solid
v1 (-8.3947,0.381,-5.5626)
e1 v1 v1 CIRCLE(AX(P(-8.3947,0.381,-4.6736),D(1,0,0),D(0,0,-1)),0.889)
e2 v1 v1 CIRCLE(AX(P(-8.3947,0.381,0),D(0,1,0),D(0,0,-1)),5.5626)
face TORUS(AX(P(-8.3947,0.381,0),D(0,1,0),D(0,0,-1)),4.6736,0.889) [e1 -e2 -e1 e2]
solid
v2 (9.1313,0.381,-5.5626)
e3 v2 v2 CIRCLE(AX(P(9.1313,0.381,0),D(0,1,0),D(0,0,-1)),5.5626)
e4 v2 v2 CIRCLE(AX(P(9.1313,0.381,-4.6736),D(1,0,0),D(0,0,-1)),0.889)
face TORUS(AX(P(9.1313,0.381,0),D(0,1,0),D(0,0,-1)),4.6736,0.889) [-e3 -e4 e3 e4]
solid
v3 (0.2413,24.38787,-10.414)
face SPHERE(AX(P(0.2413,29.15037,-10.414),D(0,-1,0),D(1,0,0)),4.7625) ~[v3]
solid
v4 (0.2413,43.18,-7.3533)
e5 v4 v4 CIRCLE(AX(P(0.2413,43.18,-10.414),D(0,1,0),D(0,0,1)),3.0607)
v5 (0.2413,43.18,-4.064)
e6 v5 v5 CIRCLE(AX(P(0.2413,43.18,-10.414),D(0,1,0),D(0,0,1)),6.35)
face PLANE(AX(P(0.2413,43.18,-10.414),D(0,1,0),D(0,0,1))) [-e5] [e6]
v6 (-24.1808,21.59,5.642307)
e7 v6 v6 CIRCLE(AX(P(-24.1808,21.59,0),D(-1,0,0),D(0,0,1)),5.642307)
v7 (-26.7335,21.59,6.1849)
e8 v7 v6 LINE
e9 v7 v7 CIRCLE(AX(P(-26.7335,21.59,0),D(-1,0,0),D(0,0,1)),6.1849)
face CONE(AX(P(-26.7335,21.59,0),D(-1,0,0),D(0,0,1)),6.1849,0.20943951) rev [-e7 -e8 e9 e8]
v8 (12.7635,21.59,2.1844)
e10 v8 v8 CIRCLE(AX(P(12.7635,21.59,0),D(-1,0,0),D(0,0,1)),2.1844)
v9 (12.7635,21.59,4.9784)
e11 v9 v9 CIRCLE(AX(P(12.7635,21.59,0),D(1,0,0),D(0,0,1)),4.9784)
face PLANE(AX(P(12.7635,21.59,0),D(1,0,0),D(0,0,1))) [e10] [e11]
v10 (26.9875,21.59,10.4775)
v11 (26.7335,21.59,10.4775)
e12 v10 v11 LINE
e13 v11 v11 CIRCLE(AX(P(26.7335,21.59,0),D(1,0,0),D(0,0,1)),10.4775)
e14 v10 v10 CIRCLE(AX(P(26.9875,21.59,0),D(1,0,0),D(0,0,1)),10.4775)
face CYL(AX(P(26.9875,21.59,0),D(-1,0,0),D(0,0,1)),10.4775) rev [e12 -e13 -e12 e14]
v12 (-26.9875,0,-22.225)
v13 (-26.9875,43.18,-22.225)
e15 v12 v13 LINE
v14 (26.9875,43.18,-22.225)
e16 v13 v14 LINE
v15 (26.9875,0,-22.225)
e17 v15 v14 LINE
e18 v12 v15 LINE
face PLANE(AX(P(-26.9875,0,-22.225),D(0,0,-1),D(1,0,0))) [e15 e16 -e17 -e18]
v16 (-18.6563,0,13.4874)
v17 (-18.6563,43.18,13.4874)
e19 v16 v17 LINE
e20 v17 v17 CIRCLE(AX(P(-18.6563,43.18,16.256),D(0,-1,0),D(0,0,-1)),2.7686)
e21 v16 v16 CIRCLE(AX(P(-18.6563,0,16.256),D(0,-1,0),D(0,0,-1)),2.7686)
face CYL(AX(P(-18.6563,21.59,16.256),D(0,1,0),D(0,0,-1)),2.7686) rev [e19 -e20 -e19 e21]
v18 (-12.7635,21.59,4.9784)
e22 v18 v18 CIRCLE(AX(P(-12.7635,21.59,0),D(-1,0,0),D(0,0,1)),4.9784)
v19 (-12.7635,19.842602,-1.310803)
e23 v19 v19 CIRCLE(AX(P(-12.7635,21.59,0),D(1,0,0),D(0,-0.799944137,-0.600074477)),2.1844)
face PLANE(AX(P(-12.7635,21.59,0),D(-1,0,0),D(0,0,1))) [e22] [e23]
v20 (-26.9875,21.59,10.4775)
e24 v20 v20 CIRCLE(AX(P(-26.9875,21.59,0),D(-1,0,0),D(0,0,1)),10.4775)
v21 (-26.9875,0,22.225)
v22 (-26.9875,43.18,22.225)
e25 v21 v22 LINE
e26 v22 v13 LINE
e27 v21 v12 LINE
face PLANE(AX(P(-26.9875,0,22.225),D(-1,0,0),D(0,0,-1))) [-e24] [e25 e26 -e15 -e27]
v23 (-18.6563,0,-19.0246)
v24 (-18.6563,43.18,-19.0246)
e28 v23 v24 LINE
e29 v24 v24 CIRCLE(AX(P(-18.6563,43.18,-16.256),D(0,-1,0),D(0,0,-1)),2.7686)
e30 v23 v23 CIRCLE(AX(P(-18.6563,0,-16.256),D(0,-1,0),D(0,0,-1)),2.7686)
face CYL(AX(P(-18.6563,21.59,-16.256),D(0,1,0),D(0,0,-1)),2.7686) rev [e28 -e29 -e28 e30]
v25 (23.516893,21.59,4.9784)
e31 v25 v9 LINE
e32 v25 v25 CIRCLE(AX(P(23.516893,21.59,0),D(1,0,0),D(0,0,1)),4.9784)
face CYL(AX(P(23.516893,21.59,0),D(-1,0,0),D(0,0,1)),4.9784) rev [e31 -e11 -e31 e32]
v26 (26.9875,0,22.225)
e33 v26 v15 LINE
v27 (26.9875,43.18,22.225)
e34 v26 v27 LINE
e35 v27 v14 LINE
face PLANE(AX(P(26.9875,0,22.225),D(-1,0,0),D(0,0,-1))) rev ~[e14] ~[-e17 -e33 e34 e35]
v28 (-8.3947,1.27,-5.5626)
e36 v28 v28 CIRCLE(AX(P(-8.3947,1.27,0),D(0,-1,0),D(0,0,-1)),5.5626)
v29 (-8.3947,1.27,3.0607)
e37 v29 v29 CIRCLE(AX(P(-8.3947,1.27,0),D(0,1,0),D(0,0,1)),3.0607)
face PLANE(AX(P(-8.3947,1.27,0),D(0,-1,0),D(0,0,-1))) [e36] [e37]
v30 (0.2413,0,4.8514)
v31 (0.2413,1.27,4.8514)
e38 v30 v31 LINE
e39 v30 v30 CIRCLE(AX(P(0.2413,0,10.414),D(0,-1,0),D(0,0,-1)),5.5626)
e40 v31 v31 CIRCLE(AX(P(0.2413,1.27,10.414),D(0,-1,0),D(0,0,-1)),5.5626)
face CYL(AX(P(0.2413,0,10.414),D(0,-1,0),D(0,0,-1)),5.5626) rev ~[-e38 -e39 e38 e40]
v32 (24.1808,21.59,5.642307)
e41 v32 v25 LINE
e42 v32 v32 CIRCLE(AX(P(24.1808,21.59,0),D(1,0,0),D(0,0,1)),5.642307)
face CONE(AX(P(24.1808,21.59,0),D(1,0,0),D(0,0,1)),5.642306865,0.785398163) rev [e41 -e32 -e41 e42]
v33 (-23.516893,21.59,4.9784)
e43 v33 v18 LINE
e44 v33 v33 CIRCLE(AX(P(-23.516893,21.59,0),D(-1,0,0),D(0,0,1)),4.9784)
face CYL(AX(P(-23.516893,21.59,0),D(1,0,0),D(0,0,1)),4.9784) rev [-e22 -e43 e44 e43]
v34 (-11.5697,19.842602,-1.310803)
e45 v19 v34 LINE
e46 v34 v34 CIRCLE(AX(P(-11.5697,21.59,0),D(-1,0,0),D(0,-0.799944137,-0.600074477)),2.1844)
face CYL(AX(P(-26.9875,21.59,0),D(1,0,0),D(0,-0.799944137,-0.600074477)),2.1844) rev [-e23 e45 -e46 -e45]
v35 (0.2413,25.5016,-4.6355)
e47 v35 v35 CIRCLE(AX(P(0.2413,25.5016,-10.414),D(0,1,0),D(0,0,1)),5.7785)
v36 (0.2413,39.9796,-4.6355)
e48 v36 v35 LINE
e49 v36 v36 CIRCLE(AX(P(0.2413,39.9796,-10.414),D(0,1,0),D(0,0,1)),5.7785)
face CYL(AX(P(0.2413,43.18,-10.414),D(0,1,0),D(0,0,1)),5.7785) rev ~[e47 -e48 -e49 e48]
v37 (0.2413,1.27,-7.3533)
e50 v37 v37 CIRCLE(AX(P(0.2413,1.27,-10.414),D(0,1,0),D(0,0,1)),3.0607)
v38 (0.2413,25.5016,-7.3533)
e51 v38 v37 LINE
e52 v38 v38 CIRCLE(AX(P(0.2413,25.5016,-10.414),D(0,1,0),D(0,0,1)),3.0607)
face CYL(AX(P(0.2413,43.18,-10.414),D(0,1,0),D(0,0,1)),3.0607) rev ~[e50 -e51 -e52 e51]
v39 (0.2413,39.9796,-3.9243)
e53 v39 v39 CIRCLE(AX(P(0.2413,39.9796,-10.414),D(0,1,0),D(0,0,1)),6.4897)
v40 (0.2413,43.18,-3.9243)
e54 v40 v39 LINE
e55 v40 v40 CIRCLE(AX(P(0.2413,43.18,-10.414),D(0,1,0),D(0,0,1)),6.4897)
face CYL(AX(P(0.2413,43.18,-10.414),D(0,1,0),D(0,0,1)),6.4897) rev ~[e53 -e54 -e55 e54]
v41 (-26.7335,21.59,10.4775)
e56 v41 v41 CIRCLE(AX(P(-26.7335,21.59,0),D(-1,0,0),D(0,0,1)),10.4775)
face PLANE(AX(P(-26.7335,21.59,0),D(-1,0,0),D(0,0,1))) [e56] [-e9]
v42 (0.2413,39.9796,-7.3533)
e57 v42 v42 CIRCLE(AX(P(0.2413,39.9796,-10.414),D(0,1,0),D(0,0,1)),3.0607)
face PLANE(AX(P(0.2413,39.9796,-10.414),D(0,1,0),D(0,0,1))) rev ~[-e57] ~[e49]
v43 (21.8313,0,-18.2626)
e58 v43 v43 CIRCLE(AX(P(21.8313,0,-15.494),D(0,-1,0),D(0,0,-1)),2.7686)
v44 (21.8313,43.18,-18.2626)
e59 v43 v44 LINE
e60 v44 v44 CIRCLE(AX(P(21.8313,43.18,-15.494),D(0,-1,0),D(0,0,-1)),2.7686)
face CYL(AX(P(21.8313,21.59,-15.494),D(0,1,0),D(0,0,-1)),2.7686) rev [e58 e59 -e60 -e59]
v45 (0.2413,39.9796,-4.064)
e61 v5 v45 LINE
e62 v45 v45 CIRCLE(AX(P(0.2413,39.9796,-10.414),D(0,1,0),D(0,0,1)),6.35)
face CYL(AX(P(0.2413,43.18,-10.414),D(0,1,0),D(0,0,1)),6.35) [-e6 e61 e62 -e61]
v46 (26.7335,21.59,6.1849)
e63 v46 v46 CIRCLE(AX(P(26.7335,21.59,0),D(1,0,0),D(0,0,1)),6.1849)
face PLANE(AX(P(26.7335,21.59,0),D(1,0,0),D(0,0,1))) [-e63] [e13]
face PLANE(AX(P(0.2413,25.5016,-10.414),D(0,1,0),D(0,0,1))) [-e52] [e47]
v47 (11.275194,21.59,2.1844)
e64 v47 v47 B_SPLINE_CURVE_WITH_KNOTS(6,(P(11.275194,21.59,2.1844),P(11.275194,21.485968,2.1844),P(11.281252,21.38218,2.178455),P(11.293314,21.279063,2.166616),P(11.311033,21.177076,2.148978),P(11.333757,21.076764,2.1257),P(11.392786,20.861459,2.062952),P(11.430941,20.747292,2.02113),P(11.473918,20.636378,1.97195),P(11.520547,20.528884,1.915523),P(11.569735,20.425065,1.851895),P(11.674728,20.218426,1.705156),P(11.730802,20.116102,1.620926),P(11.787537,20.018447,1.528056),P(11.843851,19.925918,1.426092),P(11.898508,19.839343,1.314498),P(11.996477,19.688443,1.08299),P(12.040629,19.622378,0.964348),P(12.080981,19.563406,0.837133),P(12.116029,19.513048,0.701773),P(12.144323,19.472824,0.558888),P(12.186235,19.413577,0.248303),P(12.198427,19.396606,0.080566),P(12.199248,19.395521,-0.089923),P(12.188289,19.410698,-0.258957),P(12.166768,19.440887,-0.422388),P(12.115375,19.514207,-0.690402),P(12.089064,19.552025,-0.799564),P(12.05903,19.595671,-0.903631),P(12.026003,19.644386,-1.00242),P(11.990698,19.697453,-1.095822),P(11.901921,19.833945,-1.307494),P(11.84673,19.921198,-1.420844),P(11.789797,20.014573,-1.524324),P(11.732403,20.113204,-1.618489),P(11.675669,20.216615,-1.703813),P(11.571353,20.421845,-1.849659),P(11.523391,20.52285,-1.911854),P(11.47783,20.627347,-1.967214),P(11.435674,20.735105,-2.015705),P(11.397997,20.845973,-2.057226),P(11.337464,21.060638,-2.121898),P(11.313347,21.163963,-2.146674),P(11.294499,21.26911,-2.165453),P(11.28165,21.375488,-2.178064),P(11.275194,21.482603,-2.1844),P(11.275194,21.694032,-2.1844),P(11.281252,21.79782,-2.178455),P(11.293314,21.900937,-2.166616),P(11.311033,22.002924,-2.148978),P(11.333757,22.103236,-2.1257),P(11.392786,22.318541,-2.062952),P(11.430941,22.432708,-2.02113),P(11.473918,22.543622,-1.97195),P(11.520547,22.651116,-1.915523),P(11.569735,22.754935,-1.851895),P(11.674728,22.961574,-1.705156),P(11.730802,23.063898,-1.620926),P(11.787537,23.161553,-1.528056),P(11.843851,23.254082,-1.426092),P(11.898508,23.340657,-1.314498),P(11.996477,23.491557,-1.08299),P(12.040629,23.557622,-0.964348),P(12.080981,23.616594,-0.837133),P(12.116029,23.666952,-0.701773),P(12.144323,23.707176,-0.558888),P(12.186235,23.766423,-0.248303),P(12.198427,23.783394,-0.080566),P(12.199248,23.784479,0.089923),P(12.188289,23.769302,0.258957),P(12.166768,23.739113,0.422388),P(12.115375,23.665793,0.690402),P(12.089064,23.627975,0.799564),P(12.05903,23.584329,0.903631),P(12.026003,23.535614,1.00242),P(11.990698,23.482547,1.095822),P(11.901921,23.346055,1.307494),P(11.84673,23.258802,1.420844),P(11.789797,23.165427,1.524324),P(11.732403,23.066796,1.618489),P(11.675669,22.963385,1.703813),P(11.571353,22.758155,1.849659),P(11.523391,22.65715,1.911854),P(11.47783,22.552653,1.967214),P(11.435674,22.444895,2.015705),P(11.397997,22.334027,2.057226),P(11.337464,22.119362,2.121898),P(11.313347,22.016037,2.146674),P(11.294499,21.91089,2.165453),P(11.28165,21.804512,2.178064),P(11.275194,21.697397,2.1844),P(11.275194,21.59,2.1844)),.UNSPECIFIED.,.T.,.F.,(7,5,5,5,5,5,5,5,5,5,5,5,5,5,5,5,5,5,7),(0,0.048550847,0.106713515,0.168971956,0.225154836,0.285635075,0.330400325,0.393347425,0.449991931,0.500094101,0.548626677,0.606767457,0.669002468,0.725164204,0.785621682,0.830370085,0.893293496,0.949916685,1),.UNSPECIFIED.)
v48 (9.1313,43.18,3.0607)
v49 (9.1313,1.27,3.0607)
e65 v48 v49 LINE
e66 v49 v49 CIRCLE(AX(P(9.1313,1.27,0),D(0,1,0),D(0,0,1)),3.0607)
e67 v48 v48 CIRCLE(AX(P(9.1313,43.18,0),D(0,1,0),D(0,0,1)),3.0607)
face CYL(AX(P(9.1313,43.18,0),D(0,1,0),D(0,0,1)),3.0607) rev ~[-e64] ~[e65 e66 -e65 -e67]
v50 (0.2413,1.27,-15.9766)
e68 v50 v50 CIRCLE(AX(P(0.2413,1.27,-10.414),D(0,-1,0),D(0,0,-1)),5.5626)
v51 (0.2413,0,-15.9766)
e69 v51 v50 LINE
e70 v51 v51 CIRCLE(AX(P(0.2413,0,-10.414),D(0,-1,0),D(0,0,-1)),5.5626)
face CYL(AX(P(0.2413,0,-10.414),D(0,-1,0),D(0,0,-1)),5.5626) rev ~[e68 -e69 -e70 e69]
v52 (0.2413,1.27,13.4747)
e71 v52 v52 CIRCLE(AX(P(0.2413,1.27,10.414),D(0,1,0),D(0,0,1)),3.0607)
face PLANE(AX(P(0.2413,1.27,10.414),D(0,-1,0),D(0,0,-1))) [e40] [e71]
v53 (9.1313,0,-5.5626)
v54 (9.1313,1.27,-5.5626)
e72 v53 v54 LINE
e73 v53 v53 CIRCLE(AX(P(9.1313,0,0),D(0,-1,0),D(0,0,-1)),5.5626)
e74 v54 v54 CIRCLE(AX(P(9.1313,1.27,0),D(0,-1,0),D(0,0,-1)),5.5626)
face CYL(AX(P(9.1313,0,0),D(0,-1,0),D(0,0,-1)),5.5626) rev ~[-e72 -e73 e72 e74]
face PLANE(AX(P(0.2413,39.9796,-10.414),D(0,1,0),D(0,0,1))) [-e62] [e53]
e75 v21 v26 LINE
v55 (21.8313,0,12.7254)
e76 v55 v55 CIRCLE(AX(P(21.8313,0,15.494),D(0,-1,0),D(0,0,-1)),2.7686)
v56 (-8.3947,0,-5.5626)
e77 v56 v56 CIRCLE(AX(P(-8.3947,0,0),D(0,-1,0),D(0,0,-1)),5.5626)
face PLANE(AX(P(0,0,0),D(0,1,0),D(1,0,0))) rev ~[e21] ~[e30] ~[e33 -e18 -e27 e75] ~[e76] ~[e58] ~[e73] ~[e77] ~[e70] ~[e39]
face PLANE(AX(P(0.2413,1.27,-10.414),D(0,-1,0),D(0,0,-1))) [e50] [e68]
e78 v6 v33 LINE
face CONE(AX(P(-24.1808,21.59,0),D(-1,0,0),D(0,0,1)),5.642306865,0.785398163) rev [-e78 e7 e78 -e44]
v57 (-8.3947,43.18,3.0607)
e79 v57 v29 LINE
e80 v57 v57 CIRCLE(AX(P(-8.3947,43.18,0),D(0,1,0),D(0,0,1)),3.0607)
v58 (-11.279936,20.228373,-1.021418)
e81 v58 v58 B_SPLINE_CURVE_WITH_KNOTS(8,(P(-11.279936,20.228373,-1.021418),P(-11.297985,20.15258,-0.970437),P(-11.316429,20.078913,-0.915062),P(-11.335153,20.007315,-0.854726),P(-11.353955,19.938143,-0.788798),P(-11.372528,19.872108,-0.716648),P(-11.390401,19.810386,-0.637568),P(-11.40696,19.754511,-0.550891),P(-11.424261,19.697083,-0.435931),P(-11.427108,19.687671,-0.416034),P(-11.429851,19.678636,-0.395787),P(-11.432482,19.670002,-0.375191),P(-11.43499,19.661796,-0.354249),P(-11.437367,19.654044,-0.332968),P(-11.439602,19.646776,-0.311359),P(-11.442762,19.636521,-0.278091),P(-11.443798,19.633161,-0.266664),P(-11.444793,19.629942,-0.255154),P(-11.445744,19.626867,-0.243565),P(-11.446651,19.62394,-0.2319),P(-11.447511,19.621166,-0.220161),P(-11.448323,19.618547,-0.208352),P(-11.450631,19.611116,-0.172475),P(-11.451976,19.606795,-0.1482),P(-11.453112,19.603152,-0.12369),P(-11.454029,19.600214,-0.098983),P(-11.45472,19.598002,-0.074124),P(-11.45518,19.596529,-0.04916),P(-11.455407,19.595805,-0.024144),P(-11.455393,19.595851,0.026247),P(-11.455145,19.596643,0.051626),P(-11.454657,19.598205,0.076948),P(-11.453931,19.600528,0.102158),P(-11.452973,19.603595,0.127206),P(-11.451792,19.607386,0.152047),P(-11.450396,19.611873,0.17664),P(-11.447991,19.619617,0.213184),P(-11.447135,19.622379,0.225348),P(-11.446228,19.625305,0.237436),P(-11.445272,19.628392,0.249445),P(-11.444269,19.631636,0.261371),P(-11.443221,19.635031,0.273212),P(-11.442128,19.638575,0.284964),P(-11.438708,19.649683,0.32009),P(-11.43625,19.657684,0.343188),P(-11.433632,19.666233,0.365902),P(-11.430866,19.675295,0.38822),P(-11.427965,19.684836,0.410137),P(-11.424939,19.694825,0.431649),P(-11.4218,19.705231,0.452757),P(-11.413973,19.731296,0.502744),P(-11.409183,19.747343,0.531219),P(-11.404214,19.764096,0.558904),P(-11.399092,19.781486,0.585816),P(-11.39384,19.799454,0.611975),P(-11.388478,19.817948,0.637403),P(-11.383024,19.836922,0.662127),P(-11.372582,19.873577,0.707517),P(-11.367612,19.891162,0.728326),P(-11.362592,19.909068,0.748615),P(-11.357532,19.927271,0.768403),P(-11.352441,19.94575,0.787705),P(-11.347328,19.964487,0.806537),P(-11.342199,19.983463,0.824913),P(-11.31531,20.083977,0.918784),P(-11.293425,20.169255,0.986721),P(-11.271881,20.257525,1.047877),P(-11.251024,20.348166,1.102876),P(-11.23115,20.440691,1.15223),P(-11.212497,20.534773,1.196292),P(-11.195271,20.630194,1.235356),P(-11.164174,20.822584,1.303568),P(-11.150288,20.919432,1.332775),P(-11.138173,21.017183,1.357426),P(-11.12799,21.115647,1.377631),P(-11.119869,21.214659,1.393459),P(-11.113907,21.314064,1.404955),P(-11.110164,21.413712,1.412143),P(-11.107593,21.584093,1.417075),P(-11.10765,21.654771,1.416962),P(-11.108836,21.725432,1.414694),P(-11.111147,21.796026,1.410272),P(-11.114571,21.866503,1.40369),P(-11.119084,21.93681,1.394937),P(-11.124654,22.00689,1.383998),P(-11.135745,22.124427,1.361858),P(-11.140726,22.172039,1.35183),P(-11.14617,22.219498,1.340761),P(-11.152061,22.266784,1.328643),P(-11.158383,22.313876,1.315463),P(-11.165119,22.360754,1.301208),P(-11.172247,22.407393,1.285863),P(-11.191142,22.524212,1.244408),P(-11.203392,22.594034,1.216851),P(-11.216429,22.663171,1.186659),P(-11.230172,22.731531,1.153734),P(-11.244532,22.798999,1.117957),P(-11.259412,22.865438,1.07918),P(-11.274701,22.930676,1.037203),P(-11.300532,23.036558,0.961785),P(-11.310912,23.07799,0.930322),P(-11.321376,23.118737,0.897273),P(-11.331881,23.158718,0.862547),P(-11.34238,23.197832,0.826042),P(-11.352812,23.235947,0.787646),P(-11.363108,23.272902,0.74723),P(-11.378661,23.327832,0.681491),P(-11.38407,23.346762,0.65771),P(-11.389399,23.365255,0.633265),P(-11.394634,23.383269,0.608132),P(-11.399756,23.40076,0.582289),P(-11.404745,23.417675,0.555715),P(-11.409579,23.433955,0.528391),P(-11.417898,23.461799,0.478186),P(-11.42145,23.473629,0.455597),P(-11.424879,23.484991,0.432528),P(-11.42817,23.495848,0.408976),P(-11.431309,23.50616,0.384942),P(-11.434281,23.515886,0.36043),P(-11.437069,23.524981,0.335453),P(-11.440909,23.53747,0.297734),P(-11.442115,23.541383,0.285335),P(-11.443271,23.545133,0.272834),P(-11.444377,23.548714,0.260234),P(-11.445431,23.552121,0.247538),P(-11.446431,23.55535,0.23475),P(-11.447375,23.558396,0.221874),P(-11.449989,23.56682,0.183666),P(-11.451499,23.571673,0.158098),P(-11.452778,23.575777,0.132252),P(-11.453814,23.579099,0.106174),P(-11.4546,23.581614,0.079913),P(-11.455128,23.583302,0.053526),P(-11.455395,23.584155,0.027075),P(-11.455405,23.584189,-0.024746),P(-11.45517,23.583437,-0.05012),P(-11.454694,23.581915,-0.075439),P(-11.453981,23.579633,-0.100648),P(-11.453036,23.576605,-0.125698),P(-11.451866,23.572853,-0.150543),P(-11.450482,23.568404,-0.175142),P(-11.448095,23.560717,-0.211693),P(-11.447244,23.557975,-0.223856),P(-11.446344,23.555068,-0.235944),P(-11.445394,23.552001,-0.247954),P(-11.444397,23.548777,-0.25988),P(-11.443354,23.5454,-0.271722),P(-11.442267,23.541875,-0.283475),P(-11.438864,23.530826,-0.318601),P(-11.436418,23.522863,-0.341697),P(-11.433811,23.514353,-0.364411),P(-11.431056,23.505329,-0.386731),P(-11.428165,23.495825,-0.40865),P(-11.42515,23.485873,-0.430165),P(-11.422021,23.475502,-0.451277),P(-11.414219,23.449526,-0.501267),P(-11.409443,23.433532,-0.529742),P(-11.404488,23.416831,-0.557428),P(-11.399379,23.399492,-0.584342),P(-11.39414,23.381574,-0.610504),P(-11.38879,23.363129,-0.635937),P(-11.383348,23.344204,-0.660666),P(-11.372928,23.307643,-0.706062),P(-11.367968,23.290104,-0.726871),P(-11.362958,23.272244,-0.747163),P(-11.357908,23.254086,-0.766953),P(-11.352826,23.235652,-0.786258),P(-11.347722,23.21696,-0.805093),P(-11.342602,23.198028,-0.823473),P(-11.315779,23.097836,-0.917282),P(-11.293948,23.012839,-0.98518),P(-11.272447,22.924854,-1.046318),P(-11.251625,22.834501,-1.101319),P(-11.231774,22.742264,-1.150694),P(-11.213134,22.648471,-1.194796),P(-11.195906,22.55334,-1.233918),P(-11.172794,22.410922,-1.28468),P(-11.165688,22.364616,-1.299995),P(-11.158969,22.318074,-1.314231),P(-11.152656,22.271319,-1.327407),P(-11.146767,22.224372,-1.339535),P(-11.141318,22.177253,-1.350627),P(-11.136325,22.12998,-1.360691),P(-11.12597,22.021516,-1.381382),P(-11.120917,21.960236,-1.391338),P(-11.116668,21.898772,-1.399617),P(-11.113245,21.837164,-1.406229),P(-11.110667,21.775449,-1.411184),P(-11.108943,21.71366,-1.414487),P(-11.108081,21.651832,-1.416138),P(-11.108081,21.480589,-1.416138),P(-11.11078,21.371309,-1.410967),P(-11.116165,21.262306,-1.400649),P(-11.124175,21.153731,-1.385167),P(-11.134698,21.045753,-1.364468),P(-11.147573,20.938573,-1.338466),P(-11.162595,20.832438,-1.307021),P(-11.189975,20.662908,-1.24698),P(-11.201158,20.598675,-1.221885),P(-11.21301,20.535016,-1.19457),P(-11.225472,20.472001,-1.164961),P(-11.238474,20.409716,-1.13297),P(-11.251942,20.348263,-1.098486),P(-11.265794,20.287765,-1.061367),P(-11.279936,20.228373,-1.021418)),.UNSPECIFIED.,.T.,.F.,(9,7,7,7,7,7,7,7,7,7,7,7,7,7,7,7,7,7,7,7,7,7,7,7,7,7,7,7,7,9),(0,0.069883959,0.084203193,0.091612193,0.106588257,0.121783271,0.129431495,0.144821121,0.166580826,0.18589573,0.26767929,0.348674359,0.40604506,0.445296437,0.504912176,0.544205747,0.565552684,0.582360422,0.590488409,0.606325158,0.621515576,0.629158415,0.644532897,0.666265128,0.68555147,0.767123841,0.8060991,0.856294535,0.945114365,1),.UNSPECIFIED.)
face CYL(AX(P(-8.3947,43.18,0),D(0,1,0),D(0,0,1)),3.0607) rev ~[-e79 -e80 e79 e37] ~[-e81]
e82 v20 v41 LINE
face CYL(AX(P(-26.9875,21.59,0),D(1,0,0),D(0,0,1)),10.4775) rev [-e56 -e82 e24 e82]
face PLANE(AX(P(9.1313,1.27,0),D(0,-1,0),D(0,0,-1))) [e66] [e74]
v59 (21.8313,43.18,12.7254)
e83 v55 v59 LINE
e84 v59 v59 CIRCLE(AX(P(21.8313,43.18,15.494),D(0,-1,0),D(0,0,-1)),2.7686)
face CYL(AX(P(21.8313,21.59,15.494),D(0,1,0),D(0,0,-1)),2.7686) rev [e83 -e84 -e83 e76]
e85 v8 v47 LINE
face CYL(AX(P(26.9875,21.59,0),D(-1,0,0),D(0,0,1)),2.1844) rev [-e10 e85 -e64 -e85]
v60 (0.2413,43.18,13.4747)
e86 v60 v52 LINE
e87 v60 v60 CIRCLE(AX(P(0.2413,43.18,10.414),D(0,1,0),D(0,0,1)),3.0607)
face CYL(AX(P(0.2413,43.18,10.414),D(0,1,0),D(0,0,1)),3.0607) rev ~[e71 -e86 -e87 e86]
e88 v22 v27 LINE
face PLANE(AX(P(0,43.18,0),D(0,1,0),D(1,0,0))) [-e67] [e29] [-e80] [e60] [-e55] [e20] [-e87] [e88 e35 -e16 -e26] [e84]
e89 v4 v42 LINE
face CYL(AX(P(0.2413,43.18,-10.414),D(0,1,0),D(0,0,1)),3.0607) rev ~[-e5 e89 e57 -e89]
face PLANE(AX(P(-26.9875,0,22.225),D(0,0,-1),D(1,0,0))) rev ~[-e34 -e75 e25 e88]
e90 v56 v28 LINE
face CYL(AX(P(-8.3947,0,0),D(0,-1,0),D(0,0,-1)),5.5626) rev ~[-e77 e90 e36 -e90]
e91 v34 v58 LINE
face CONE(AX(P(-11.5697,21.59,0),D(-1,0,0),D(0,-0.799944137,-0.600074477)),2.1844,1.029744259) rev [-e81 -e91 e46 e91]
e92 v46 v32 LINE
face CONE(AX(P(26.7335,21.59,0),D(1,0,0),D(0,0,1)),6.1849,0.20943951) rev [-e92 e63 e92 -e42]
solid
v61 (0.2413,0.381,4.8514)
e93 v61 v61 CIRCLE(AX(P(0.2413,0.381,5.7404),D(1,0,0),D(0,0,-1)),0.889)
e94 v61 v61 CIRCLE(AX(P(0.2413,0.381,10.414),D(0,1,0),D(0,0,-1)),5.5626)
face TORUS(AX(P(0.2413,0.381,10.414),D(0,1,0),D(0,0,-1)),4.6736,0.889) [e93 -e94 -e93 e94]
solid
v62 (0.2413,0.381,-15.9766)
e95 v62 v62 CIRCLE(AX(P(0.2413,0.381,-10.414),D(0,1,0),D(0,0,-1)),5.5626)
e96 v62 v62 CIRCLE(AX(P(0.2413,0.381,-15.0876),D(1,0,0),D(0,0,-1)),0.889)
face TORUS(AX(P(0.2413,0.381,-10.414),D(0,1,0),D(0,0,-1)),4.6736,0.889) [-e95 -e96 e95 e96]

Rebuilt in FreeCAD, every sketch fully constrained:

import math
import FreeCAD as App
import Part
import Sketcher
Q = App.Units.Quantity


def add_polygon(sketch, points):
    """Adds a closed chain of lines whose ends are joined by coincident constraints."""
    first, n = sketch.GeometryCount, len(points)
    for a, b in zip(points, points[1:] + points[:1]):
        sketch.addGeometry(Part.LineSegment(App.Vector(*a, 0), App.Vector(*b, 0)), False)
    for i in range(n):
        sketch.addConstraint(Sketcher.Constraint("Coincident", first + i, 2, first + (i + 1) % n, 1))

doc = App.newDocument("Part")
body = doc.addObject("PartDesign::Body", "Body")

sketch1 = body.newObject("Sketcher::SketchObject", "Sketch")
sketch1.AttachmentSupport = (doc.getObject("XZ_Plane"), [""])
sketch1.MapMode = "FlatFace"
add_polygon(sketch1, [(-27, -22), (-27, 22), (27, 22), (27, -22)])
sketch1.addConstraint(Sketcher.Constraint("Vertical", 0))
sketch1.addConstraint(Sketcher.Constraint("Horizontal", 1))
sketch1.addConstraint(Sketcher.Constraint("Vertical", 2))
sketch1.addConstraint(Sketcher.Constraint("Horizontal", 3))
sketch1.addConstraint(Sketcher.Constraint("Symmetric", 0, 2, 2, 2, -1, 1))
sketch1.addConstraint(Sketcher.Constraint("DistanceY", 0, 1, 0, 2, Q("1.75 in")))
sketch1.addConstraint(Sketcher.Constraint("DistanceX", 1, 1, 1, 2, Q("2.125 in")))
pad1 = body.newObject("PartDesign::Pad", "Pad")
pad1.Profile = sketch1
pad1.Length = Q("1.7 in")
pad1.Reversed = True

sketch2 = body.newObject("Sketcher::SketchObject", "Sketch001")
sketch2.AttachmentSupport = (doc.getObject("XZ_Plane"), [""])
sketch2.MapMode = "FlatFace"
sketch2.AttachmentOffset = App.Placement(App.Vector(0, 0, -1.7 * 25.4), App.Rotation())
sketch2.addGeometry(Part.Circle(App.Vector(0.2, 10.4, 0), App.Vector(0, 0, 1), 3.1), False)
sketch2.addGeometry(Part.Circle(App.Vector(0.2, -10.4, 0), App.Vector(0, 0, 1), 3.1), False)
sketch2.addGeometry(Part.Circle(App.Vector(9.1, 0, 0), App.Vector(0, 0, 1), 3.1), False)
sketch2.addGeometry(Part.Circle(App.Vector(-8.4, 0, 0), App.Vector(0, 0, 1), 3.1), False)
sketch2.addConstraint(Sketcher.Constraint("Equal", 0, 1))
sketch2.addConstraint(Sketcher.Constraint("Equal", 1, 2))
sketch2.addConstraint(Sketcher.Constraint("Equal", 2, 3))
sketch2.addConstraint(Sketcher.Constraint("Symmetric", 0, 3, 1, 3, -1))
sketch2.addConstraint(Sketcher.Constraint("PointOnObject", 2, 3, -1))
sketch2.addConstraint(Sketcher.Constraint("PointOnObject", 3, 3, -1))
sketch2.addConstraint(Sketcher.Constraint("Diameter", 0, Q("0.241 in")))
sketch2.addConstraint(Sketcher.Constraint("DistanceY", -1, 1, 0, 3, Q("0.41 in")))
sketch2.addConstraint(Sketcher.Constraint("DistanceX", 0, 3, 2, 3, Q("0.35 in")))
sketch2.addConstraint(Sketcher.Constraint("DistanceX", 3, 3, 0, 3, Q("0.34 in")))
sketch2.addConstraint(Sketcher.Constraint("DistanceX", -1, 1, 0, 3, Q("0.0095 in")))
pocket1 = body.newObject("PartDesign::Pocket", "Pocket")
pocket1.Profile = sketch2
pocket1.Type = "ThroughAll"
pocket1.Reversed = True

sketch3 = body.newObject("Sketcher::SketchObject", "Sketch002")
sketch3.AttachmentSupport = (doc.getObject("XZ_Plane"), [""])
sketch3.MapMode = "FlatFace"
sketch3.addGeometry(Part.Circle(App.Vector(0, -10, 0), App.Vector(0, 0, 1), 6), False)
sketch3.addGeometry(Part.Circle(App.Vector(9, 0, 0), App.Vector(0, 0, 1), 6), False)
sketch3.addGeometry(Part.Circle(App.Vector(0, 10, 0), App.Vector(0, 0, 1), 6), False)
sketch3.addGeometry(Part.Circle(App.Vector(-8, 0, 0), App.Vector(0, 0, 1), 6), False)
sketch3.addConstraint(Sketcher.Constraint("Equal", 0, 1))
sketch3.addConstraint(Sketcher.Constraint("Equal", 1, 2))
sketch3.addConstraint(Sketcher.Constraint("Equal", 2, 3))
sketch3.addConstraint(Sketcher.Constraint("Symmetric", 0, 3, 2, 3, -1))
sketch3.addConstraint(Sketcher.Constraint("PointOnObject", 1, 3, -1))
sketch3.addConstraint(Sketcher.Constraint("PointOnObject", 3, 3, -1))
sketch3.addConstraint(Sketcher.Constraint("Diameter", 0, Q("0.438 in")))
sketch3.addConstraint(Sketcher.Constraint("DistanceY", 0, 3, -1, 1, Q("0.41 in")))
sketch3.addConstraint(Sketcher.Constraint("DistanceX", 0, 3, 1, 3, Q("0.35 in")))
sketch3.addConstraint(Sketcher.Constraint("DistanceX", 3, 3, 0, 3, Q("0.34 in")))
sketch3.addConstraint(Sketcher.Constraint("DistanceX", -1, 1, 0, 3, Q("0.0095 in")))
pocket2 = body.newObject("PartDesign::Pocket", "Pocket001")
pocket2.Profile = sketch3
pocket2.Length = Q("0.05 in")

sketch4 = body.newObject("Sketcher::SketchObject", "Sketch003")
sketch4.AttachmentSupport = (doc.getObject("XY_Plane"), [""])
sketch4.MapMode = "FlatFace"
add_polygon(sketch4, [(26.99, 11.11), (26.99, 21.59), (12.76, 21.59), (12.76, 16.61), (23.52, 16.61), (24.18, 15.95), (26.73, 15.41), (26.73, 11.11)])
sketch4.addGeometry(Part.LineSegment(App.Vector(12.76, 21.59, 0), App.Vector(26.99, 21.59, 0)), True)
sketch4.addConstraint(Sketcher.Constraint("Vertical", 0))
sketch4.addConstraint(Sketcher.Constraint("Horizontal", 1))
sketch4.addConstraint(Sketcher.Constraint("Vertical", 2))
sketch4.addConstraint(Sketcher.Constraint("Horizontal", 3))
sketch4.addConstraint(Sketcher.Constraint("Vertical", 6))
sketch4.addConstraint(Sketcher.Constraint("Horizontal", 7))
sketch4.addConstraint(Sketcher.Constraint("Horizontal", 8))
sketch4.addConstraint(Sketcher.Constraint("Coincident", 8, 1, 1, 2))
sketch4.addConstraint(Sketcher.Constraint("Vertical", 7, 2, 8, 2))
sketch4.addConstraint(Sketcher.Constraint("Angle", 4, Q("-45 deg")))
sketch4.addConstraint(Sketcher.Constraint("Angle", 5, Q("-12 deg")))
sketch4.addConstraint(Sketcher.Constraint("DistanceX", 1, 2, 1, 1, Q("0.56 in")))
sketch4.addConstraint(Sketcher.Constraint("DistanceX", 7, 1, 7, 2, Q("0.01 in")))
sketch4.addConstraint(Sketcher.Constraint("DistanceY", 2, 2, 2, 1, Q("0.196 in")))
sketch4.addConstraint(Sketcher.Constraint("DistanceY", 6, 2, 6, 1, Q("0.169 in")))
sketch4.addConstraint(Sketcher.Constraint("DistanceY", -1, 1, 0, 2, Q("0.85 in")))
sketch4.addConstraint(Sketcher.Constraint("DistanceY", 0, 1, 0, 2, Q("0.4125 in")))
sketch4.addConstraint(Sketcher.Constraint("DistanceX", -1, 1, 0, 2, Q("1.0625 in")))
sketch4.addConstraint(Sketcher.Constraint("DistanceX", -1, 1, 4, 2, Q("0.952 in")))
groove = body.newObject("PartDesign::Groove", "Groove")
groove.Profile = sketch4
groove.ReferenceAxis = (sketch4, ["Axis0"])
groove.Angle = 360

sketch5 = body.newObject("Sketcher::SketchObject", "Sketch004")
sketch5.AttachmentSupport = (doc.getObject("XY_Plane"), [""])
sketch5.MapMode = "FlatFace"
add_polygon(sketch5, [(-26.99, 32.07), (-26.99, 21.59), (-12.76, 21.59), (-12.76, 26.57), (-23.52, 26.57), (-24.18, 27.23), (-26.73, 27.77), (-26.73, 32.07)])
sketch5.addGeometry(Part.LineSegment(App.Vector(-12.76, 21.59, 0), App.Vector(-26.99, 21.59, 0)), True)
sketch5.addConstraint(Sketcher.Constraint("Vertical", 0))
sketch5.addConstraint(Sketcher.Constraint("Horizontal", 1))
sketch5.addConstraint(Sketcher.Constraint("Vertical", 2))
sketch5.addConstraint(Sketcher.Constraint("Horizontal", 3))
sketch5.addConstraint(Sketcher.Constraint("Vertical", 6))
sketch5.addConstraint(Sketcher.Constraint("Horizontal", 7))
sketch5.addConstraint(Sketcher.Constraint("Horizontal", 8))
sketch5.addConstraint(Sketcher.Constraint("Coincident", 8, 1, 1, 2))
sketch5.addConstraint(Sketcher.Constraint("Vertical", 7, 2, 8, 2))
sketch5.addConstraint(Sketcher.Constraint("Angle", 4, Q("135 deg")))
sketch5.addConstraint(Sketcher.Constraint("Angle", 5, Q("168 deg")))
sketch5.addConstraint(Sketcher.Constraint("DistanceX", 1, 1, 1, 2, Q("0.56 in")))
sketch5.addConstraint(Sketcher.Constraint("DistanceX", 7, 2, 7, 1, Q("0.01 in")))
sketch5.addConstraint(Sketcher.Constraint("DistanceY", 2, 1, 2, 2, Q("0.196 in")))
sketch5.addConstraint(Sketcher.Constraint("DistanceY", 6, 1, 6, 2, Q("0.169 in")))
sketch5.addConstraint(Sketcher.Constraint("DistanceY", -1, 1, 0, 2, Q("0.85 in")))
sketch5.addConstraint(Sketcher.Constraint("DistanceY", 0, 2, 0, 1, Q("0.4125 in")))
sketch5.addConstraint(Sketcher.Constraint("DistanceX", 0, 2, -1, 1, Q("1.0625 in")))
sketch5.addConstraint(Sketcher.Constraint("DistanceX", 4, 2, -1, 1, Q("0.952 in")))
groove2 = body.newObject("PartDesign::Groove", "Groove001")
groove2.Profile = sketch5
groove2.ReferenceAxis = (sketch5, ["Axis0"])
groove2.Angle = 360

sketch6 = body.newObject("Sketcher::SketchObject", "Sketch005")
sketch6.AttachmentSupport = (doc.getObject("XY_Plane"), [""])
sketch6.MapMode = "FlatFace"
add_polygon(sketch6, [(27, 19.4), (27, 21.6), (7.8, 21.6), (9.1, 19.4)])
sketch6.addGeometry(Part.LineSegment(App.Vector(7.8, 21.6, 0), App.Vector(27, 21.6, 0)), True)
sketch6.addConstraint(Sketcher.Constraint("Vertical", 0))
sketch6.addConstraint(Sketcher.Constraint("Horizontal", 1))
sketch6.addConstraint(Sketcher.Constraint("Horizontal", 3))
sketch6.addConstraint(Sketcher.Constraint("Horizontal", 4))
sketch6.addConstraint(Sketcher.Constraint("Coincident", 4, 1, 1, 2))
sketch6.addConstraint(Sketcher.Constraint("Vertical", 3, 2, 4, 2))
sketch6.addConstraint(Sketcher.Constraint("Angle", 2, Q("-59 deg")))
sketch6.addConstraint(Sketcher.Constraint("DistanceX", 3, 1, 3, 2, Q("0.703 in")))
sketch6.addConstraint(Sketcher.Constraint("DistanceY", 0, 1, 0, 2, Q("0.086 in")))
sketch6.addConstraint(Sketcher.Constraint("DistanceY", -1, 1, 0, 2, Q("0.85 in")))
sketch6.addConstraint(Sketcher.Constraint("DistanceX", -1, 1, 0, 2, Q("1.0625 in")))
groove3 = body.newObject("PartDesign::Groove", "Groove002")
groove3.Profile = sketch6
groove3.ReferenceAxis = (sketch6, ["Axis0"])
groove3.Angle = 360

sketch7 = body.newObject("Sketcher::SketchObject", "Sketch006")
sketch7.AttachmentSupport = (doc.getObject("XY_Plane"), [""])
sketch7.MapMode = "FlatFace"
add_polygon(sketch7, [(-27, 23.8), (-27, 21.6), (-10.3, 21.6), (-11.6, 23.8)])
sketch7.addGeometry(Part.LineSegment(App.Vector(-10.3, 21.6, 0), App.Vector(-27, 21.6, 0)), True)
sketch7.addConstraint(Sketcher.Constraint("Vertical", 0))
sketch7.addConstraint(Sketcher.Constraint("Horizontal", 1))
sketch7.addConstraint(Sketcher.Constraint("Horizontal", 3))
sketch7.addConstraint(Sketcher.Constraint("Horizontal", 4))
sketch7.addConstraint(Sketcher.Constraint("Coincident", 4, 1, 1, 2))
sketch7.addConstraint(Sketcher.Constraint("Vertical", 3, 2, 4, 2))
sketch7.addConstraint(Sketcher.Constraint("Angle", 2, Q("121 deg")))
sketch7.addConstraint(Sketcher.Constraint("DistanceX", 3, 2, 3, 1, Q("0.607 in")))
sketch7.addConstraint(Sketcher.Constraint("DistanceY", 0, 2, 0, 1, Q("0.086 in")))
sketch7.addConstraint(Sketcher.Constraint("DistanceY", -1, 1, 0, 2, Q("0.85 in")))
sketch7.addConstraint(Sketcher.Constraint("DistanceX", 0, 2, -1, 1, Q("1.0625 in")))
groove4 = body.newObject("PartDesign::Groove", "Groove003")
groove4.Profile = sketch7
groove4.ReferenceAxis = (sketch7, ["Axis0"])
groove4.Angle = 360

sketch8 = body.newObject("Sketcher::SketchObject", "Sketch007")
sketch8.AttachmentSupport = (doc.getObject("XZ_Plane"), [""])
sketch8.MapMode = "FlatFace"
sketch8.AttachmentOffset = App.Placement(App.Vector(0, 0, -1.7 * 25.4), App.Rotation())
sketch8.addGeometry(Part.Circle(App.Vector(0, -10, 0), App.Vector(0, 0, 1), 6), False)
sketch8.addConstraint(Sketcher.Constraint("Diameter", 0, Q("0.511 in")))
sketch8.addConstraint(Sketcher.Constraint("DistanceY", 0, 3, -1, 1, Q("0.41 in")))
sketch8.addConstraint(Sketcher.Constraint("DistanceX", -1, 1, 0, 3, Q("0.0095 in")))
pocket3 = body.newObject("PartDesign::Pocket", "Pocket002")
pocket3.Profile = sketch8
pocket3.Length = Q("0.126 in")
pocket3.Reversed = True

sketch9 = body.newObject("Sketcher::SketchObject", "Sketch008")
sketch9.AttachmentSupport = (doc.getObject("XZ_Plane"), [""])
sketch9.MapMode = "FlatFace"
sketch9.AttachmentOffset = App.Placement(App.Vector(0, 0, -1.7 * 25.4), App.Rotation())
sketch9.addGeometry(Part.Circle(App.Vector(0, -10, 0), App.Vector(0, 0, 1), 6), False)
sketch9.addConstraint(Sketcher.Constraint("Diameter", 0, Q("0.455 in")))
sketch9.addConstraint(Sketcher.Constraint("DistanceY", 0, 3, -1, 1, Q("0.41 in")))
sketch9.addConstraint(Sketcher.Constraint("DistanceX", -1, 1, 0, 3, Q("0.0095 in")))
pocket4 = body.newObject("PartDesign::Pocket", "Pocket003")
pocket4.Profile = sketch9
pocket4.Length = Q("0.696 in")
pocket4.Reversed = True

sketch10 = body.newObject("Sketcher::SketchObject", "Sketch009")
sketch10.AttachmentSupport = (doc.getObject("XZ_Plane"), [""])
sketch10.MapMode = "FlatFace"
sketch10.AttachmentOffset = App.Placement(App.Vector(0, 0, -1.7 * 25.4), App.Rotation())
sketch10.addGeometry(Part.Circle(App.Vector(0.2, -10.4, 0), App.Vector(0, 0, 1), 6.3), False)
sketch10.addGeometry(Part.Circle(App.Vector(0.2, -10.4, 0), App.Vector(0, 0, 1), 3.1), False)
sketch10.addConstraint(Sketcher.Constraint("Coincident", 1, 3, 0, 3))
sketch10.addConstraint(Sketcher.Constraint("Diameter", 0, Q("0.5 in")))
sketch10.addConstraint(Sketcher.Constraint("Diameter", 1, Q("0.241 in")))
sketch10.addConstraint(Sketcher.Constraint("DistanceY", 0, 3, -1, 1, Q("0.41 in")))
sketch10.addConstraint(Sketcher.Constraint("DistanceX", -1, 1, 0, 3, Q("0.0095 in")))
pad2 = body.newObject("PartDesign::Pad", "Pad001")
pad2.Profile = sketch10
pad2.Length = Q("0.126 in")

sketch11 = body.newObject("Sketcher::SketchObject", "Sketch010")
sketch11.AttachmentSupport = (doc.getObject("YZ_Plane"), [""])
sketch11.MapMode = "FlatFace"
sketch11.AttachmentOffset = App.Placement(App.Vector(0, 0, 0.8595 * 25.4), App.Rotation())
add_polygon(sketch11, [(43.2, 15.5), (0, 15.5), (0, 12.7), (43.2, 12.7)])
sketch11.addGeometry(Part.LineSegment(App.Vector(43.2, 15.5, 0), App.Vector(0, 15.5, 0)), True)
sketch11.addConstraint(Sketcher.Constraint("Horizontal", 0))
sketch11.addConstraint(Sketcher.Constraint("Vertical", 1))
sketch11.addConstraint(Sketcher.Constraint("Horizontal", 2))
sketch11.addConstraint(Sketcher.Constraint("Vertical", 3))
sketch11.addConstraint(Sketcher.Constraint("Horizontal", 4))
sketch11.addConstraint(Sketcher.Constraint("Coincident", 4, 1, 3, 2))
sketch11.addConstraint(Sketcher.Constraint("PointOnObject", 0, 2, -2))
sketch11.addConstraint(Sketcher.Constraint("PointOnObject", 4, 2, -2))
sketch11.addConstraint(Sketcher.Constraint("DistanceX", 0, 2, 0, 1, Q("1.7 in")))
sketch11.addConstraint(Sketcher.Constraint("DistanceY", 1, 2, 1, 1, Q("0.109 in")))
sketch11.addConstraint(Sketcher.Constraint("DistanceY", -1, 1, 0, 2, Q("0.61 in")))
groove5 = body.newObject("PartDesign::Groove", "Groove004")
groove5.Profile = sketch11
groove5.ReferenceAxis = (sketch11, ["Axis0"])
groove5.Angle = 360
doc.recompute()

datumline = body.newObject("PartDesign::Line", "DatumLine")
datumline.Placement = App.Placement(App.Vector(0, 0, 0), App.Rotation(App.Vector(0, 0, 1), App.Vector(-0.99982294, 0, 0.018817245)))
linearpattern = body.newObject("PartDesign::LinearPattern", "LinearPattern")
linearpattern.Originals = [groove5]
linearpattern.Direction = (datumline, [""])
linearpattern.Mode = "offset"
linearpattern.Offset = 40.49477
linearpattern.Occurrences = 2
body.Tip = linearpattern
doc.recompute()

datumline2 = body.newObject("PartDesign::Line", "DatumLine001")
datumline2.Placement = App.Placement(App.Vector(0, 0, 0), App.Rotation(App.Vector(0, 0, 1), App.Vector(-0.78690042, 0, -0.617080003)))
linearpattern2 = body.newObject("PartDesign::LinearPattern", "LinearPattern001")
linearpattern2.Originals = [groove5]
linearpattern2.Direction = (datumline2, [""])
linearpattern2.Mode = "offset"
linearpattern2.Offset = 51.452
linearpattern2.Occurrences = 2
body.Tip = linearpattern2
doc.recompute()

linearpattern3 = body.newObject("PartDesign::LinearPattern", "LinearPattern002")
linearpattern3.Originals = [groove5]
linearpattern3.Direction = (doc.getObject("Z_Axis"), [""])
linearpattern3.Mode = "offset"
linearpattern3.Offset = Q("1.22 in")
linearpattern3.Occurrences = 2
linearpattern3.Reversed = True
body.Tip = linearpattern3
body2 = doc.addObject("PartDesign::Body", "Body001")

sketch12 = body2.newObject("Sketcher::SketchObject", "Sketch011")
sketch12.AttachmentSupport = (doc.getObject("XY_Plane001"), [""])
sketch12.MapMode = "FlatFace"
sketch12.AttachmentOffset = App.Placement(App.Vector(0, 0, -0.41 * 25.4), App.Rotation())
sketch12.addGeometry(Part.Circle(App.Vector(4.9, 0.4, 0), App.Vector(0, 0, 1), 0.9), False)
sketch12.addGeometry(Part.LineSegment(App.Vector(0.2, 0.4, 0), App.Vector(0.2, 10.4, 0)), True)
sketch12.addConstraint(Sketcher.Constraint("Vertical", 1))
sketch12.addConstraint(Sketcher.Constraint("Horizontal", 0, 3, 1, 1))
sketch12.addConstraint(Sketcher.Constraint("Diameter", 0, Q("0.07 in")))
sketch12.addConstraint(Sketcher.Constraint("DistanceY", -1, 1, 0, 3, Q("0.015 in")))
sketch12.addConstraint(Sketcher.Constraint("DistanceX", 1, 1, 0, 3, Q("0.184 in")))
sketch12.addConstraint(Sketcher.Constraint("DistanceY", 1, 1, 1, 2, Q("10 mm")))
sketch12.addConstraint(Sketcher.Constraint("DistanceX", -1, 1, 0, 3, Q("0.1935 in")))
revolution = body2.newObject("PartDesign::Revolution", "Revolution")
revolution.Profile = sketch12
revolution.ReferenceAxis = (sketch12, ["Axis0"])
revolution.Angle = 360
body3 = doc.addObject("PartDesign::Body", "Body002")

sketch13 = body3.newObject("Sketcher::SketchObject", "Sketch012")
sketch13.AttachmentSupport = (doc.getObject("XY_Plane002"), [""])
sketch13.MapMode = "FlatFace"
sketch13.addGeometry(Part.Circle(App.Vector(13.8, 0.4, 0), App.Vector(0, 0, 1), 0.9), False)
sketch13.addGeometry(Part.LineSegment(App.Vector(9.1, 0.4, 0), App.Vector(9.1, 10.4, 0)), True)
sketch13.addConstraint(Sketcher.Constraint("Vertical", 1))
sketch13.addConstraint(Sketcher.Constraint("Horizontal", 0, 3, 1, 1))
sketch13.addConstraint(Sketcher.Constraint("Diameter", 0, Q("0.07 in")))
sketch13.addConstraint(Sketcher.Constraint("DistanceY", -1, 1, 0, 3, Q("0.015 in")))
sketch13.addConstraint(Sketcher.Constraint("DistanceX", 1, 1, 0, 3, Q("0.184 in")))
sketch13.addConstraint(Sketcher.Constraint("DistanceY", 1, 1, 1, 2, Q("10 mm")))
sketch13.addConstraint(Sketcher.Constraint("DistanceX", -1, 1, 0, 3, Q("0.5435 in")))
revolution2 = body3.newObject("PartDesign::Revolution", "Revolution001")
revolution2.Profile = sketch13
revolution2.ReferenceAxis = (sketch13, ["Axis0"])
revolution2.Angle = 360
body4 = doc.addObject("PartDesign::Body", "Body003")

sketch14 = body4.newObject("Sketcher::SketchObject", "Sketch013")
sketch14.AttachmentSupport = (doc.getObject("XY_Plane003"), [""])
sketch14.MapMode = "FlatFace"
sketch14.AttachmentOffset = App.Placement(App.Vector(0, 0, 0.41 * 25.4), App.Rotation())
sketch14.addGeometry(Part.Circle(App.Vector(4.9, 0.4, 0), App.Vector(0, 0, 1), 0.9), False)
sketch14.addGeometry(Part.LineSegment(App.Vector(0.2, 0.4, 0), App.Vector(0.2, 10.4, 0)), True)
sketch14.addConstraint(Sketcher.Constraint("Vertical", 1))
sketch14.addConstraint(Sketcher.Constraint("Horizontal", 0, 3, 1, 1))
sketch14.addConstraint(Sketcher.Constraint("Diameter", 0, Q("0.07 in")))
sketch14.addConstraint(Sketcher.Constraint("DistanceY", -1, 1, 0, 3, Q("0.015 in")))
sketch14.addConstraint(Sketcher.Constraint("DistanceX", 1, 1, 0, 3, Q("0.184 in")))
sketch14.addConstraint(Sketcher.Constraint("DistanceY", 1, 1, 1, 2, Q("10 mm")))
sketch14.addConstraint(Sketcher.Constraint("DistanceX", -1, 1, 0, 3, Q("0.1935 in")))
revolution3 = body4.newObject("PartDesign::Revolution", "Revolution002")
revolution3.Profile = sketch14
revolution3.ReferenceAxis = (sketch14, ["Axis0"])
revolution3.Angle = 360
body5 = doc.addObject("PartDesign::Body", "Body004")

sketch15 = body5.newObject("Sketcher::SketchObject", "Sketch014")
sketch15.AttachmentSupport = (doc.getObject("XY_Plane004"), [""])
sketch15.MapMode = "FlatFace"
sketch15.addGeometry(Part.Circle(App.Vector(-3.7, 0.4, 0), App.Vector(0, 0, 1), 0.9), False)
sketch15.addGeometry(Part.LineSegment(App.Vector(-8.4, 0.4, 0), App.Vector(-8.4, 10.4, 0)), True)
sketch15.addConstraint(Sketcher.Constraint("Vertical", 1))
sketch15.addConstraint(Sketcher.Constraint("Horizontal", 0, 3, 1, 1))
sketch15.addConstraint(Sketcher.Constraint("Diameter", 0, Q("0.07 in")))
sketch15.addConstraint(Sketcher.Constraint("DistanceY", -1, 1, 0, 3, Q("0.015 in")))
sketch15.addConstraint(Sketcher.Constraint("DistanceX", 1, 1, 0, 3, Q("0.184 in")))
sketch15.addConstraint(Sketcher.Constraint("DistanceY", 1, 1, 1, 2, Q("10 mm")))
sketch15.addConstraint(Sketcher.Constraint("DistanceX", 0, 3, -1, 1, Q("0.1465 in")))
revolution4 = body5.newObject("PartDesign::Revolution", "Revolution003")
revolution4.Profile = sketch15
revolution4.ReferenceAxis = (sketch15, ["Axis0"])
revolution4.Angle = 360
body6 = doc.addObject("PartDesign::Body", "Body005")

sketch16 = body6.newObject("Sketcher::SketchObject", "Sketch015")
sketch16.AttachmentSupport = (doc.getObject("XY_Plane005"), [""])
sketch16.MapMode = "FlatFace"
sketch16.AttachmentOffset = App.Placement(App.Vector(0, 0, -0.41 * 25.4), App.Rotation())
sketch16.addGeometry(Part.LineSegment(App.Vector(0.2, 33.9, 0), App.Vector(0.2, 24.4, 0)), False)
sketch16.addGeometry(Part.ArcOfCircle(Part.Circle(App.Vector(0.2, 29.2, 0), App.Vector(0, 0, 1), 4.8), math.radians(-90), math.radians(90)), False)
sketch16.addGeometry(Part.LineSegment(App.Vector(0.2, 24.4, 0), App.Vector(0.2, 33.9, 0)), True)
sketch16.addConstraint(Sketcher.Constraint("Coincident", 0, 1, 1, 2))
sketch16.addConstraint(Sketcher.Constraint("Coincident", 1, 1, 0, 2))
sketch16.addConstraint(Sketcher.Constraint("Vertical", 0))
sketch16.addConstraint(Sketcher.Constraint("Vertical", 2))
sketch16.addConstraint(Sketcher.Constraint("Coincident", 2, 1, 1, 1))
sketch16.addConstraint(Sketcher.Constraint("Vertical", 1, 3, 0, 1))
sketch16.addConstraint(Sketcher.Constraint("Equal", 0, 2))
sketch16.addConstraint(Sketcher.Constraint("Radius", 1, Q("0.1875 in")))
sketch16.addConstraint(Sketcher.Constraint("DistanceX", -1, 1, 1, 3, Q("0.0095 in")))
sketch16.addConstraint(Sketcher.Constraint("DistanceY", -1, 1, 1, 3, Q("29.15037 mm")))
revolution5 = body6.newObject("PartDesign::Revolution", "Revolution004")
revolution5.Profile = sketch16
revolution5.ReferenceAxis = (sketch16, ["Axis0"])
revolution5.Angle = 360

doc.recompute()
